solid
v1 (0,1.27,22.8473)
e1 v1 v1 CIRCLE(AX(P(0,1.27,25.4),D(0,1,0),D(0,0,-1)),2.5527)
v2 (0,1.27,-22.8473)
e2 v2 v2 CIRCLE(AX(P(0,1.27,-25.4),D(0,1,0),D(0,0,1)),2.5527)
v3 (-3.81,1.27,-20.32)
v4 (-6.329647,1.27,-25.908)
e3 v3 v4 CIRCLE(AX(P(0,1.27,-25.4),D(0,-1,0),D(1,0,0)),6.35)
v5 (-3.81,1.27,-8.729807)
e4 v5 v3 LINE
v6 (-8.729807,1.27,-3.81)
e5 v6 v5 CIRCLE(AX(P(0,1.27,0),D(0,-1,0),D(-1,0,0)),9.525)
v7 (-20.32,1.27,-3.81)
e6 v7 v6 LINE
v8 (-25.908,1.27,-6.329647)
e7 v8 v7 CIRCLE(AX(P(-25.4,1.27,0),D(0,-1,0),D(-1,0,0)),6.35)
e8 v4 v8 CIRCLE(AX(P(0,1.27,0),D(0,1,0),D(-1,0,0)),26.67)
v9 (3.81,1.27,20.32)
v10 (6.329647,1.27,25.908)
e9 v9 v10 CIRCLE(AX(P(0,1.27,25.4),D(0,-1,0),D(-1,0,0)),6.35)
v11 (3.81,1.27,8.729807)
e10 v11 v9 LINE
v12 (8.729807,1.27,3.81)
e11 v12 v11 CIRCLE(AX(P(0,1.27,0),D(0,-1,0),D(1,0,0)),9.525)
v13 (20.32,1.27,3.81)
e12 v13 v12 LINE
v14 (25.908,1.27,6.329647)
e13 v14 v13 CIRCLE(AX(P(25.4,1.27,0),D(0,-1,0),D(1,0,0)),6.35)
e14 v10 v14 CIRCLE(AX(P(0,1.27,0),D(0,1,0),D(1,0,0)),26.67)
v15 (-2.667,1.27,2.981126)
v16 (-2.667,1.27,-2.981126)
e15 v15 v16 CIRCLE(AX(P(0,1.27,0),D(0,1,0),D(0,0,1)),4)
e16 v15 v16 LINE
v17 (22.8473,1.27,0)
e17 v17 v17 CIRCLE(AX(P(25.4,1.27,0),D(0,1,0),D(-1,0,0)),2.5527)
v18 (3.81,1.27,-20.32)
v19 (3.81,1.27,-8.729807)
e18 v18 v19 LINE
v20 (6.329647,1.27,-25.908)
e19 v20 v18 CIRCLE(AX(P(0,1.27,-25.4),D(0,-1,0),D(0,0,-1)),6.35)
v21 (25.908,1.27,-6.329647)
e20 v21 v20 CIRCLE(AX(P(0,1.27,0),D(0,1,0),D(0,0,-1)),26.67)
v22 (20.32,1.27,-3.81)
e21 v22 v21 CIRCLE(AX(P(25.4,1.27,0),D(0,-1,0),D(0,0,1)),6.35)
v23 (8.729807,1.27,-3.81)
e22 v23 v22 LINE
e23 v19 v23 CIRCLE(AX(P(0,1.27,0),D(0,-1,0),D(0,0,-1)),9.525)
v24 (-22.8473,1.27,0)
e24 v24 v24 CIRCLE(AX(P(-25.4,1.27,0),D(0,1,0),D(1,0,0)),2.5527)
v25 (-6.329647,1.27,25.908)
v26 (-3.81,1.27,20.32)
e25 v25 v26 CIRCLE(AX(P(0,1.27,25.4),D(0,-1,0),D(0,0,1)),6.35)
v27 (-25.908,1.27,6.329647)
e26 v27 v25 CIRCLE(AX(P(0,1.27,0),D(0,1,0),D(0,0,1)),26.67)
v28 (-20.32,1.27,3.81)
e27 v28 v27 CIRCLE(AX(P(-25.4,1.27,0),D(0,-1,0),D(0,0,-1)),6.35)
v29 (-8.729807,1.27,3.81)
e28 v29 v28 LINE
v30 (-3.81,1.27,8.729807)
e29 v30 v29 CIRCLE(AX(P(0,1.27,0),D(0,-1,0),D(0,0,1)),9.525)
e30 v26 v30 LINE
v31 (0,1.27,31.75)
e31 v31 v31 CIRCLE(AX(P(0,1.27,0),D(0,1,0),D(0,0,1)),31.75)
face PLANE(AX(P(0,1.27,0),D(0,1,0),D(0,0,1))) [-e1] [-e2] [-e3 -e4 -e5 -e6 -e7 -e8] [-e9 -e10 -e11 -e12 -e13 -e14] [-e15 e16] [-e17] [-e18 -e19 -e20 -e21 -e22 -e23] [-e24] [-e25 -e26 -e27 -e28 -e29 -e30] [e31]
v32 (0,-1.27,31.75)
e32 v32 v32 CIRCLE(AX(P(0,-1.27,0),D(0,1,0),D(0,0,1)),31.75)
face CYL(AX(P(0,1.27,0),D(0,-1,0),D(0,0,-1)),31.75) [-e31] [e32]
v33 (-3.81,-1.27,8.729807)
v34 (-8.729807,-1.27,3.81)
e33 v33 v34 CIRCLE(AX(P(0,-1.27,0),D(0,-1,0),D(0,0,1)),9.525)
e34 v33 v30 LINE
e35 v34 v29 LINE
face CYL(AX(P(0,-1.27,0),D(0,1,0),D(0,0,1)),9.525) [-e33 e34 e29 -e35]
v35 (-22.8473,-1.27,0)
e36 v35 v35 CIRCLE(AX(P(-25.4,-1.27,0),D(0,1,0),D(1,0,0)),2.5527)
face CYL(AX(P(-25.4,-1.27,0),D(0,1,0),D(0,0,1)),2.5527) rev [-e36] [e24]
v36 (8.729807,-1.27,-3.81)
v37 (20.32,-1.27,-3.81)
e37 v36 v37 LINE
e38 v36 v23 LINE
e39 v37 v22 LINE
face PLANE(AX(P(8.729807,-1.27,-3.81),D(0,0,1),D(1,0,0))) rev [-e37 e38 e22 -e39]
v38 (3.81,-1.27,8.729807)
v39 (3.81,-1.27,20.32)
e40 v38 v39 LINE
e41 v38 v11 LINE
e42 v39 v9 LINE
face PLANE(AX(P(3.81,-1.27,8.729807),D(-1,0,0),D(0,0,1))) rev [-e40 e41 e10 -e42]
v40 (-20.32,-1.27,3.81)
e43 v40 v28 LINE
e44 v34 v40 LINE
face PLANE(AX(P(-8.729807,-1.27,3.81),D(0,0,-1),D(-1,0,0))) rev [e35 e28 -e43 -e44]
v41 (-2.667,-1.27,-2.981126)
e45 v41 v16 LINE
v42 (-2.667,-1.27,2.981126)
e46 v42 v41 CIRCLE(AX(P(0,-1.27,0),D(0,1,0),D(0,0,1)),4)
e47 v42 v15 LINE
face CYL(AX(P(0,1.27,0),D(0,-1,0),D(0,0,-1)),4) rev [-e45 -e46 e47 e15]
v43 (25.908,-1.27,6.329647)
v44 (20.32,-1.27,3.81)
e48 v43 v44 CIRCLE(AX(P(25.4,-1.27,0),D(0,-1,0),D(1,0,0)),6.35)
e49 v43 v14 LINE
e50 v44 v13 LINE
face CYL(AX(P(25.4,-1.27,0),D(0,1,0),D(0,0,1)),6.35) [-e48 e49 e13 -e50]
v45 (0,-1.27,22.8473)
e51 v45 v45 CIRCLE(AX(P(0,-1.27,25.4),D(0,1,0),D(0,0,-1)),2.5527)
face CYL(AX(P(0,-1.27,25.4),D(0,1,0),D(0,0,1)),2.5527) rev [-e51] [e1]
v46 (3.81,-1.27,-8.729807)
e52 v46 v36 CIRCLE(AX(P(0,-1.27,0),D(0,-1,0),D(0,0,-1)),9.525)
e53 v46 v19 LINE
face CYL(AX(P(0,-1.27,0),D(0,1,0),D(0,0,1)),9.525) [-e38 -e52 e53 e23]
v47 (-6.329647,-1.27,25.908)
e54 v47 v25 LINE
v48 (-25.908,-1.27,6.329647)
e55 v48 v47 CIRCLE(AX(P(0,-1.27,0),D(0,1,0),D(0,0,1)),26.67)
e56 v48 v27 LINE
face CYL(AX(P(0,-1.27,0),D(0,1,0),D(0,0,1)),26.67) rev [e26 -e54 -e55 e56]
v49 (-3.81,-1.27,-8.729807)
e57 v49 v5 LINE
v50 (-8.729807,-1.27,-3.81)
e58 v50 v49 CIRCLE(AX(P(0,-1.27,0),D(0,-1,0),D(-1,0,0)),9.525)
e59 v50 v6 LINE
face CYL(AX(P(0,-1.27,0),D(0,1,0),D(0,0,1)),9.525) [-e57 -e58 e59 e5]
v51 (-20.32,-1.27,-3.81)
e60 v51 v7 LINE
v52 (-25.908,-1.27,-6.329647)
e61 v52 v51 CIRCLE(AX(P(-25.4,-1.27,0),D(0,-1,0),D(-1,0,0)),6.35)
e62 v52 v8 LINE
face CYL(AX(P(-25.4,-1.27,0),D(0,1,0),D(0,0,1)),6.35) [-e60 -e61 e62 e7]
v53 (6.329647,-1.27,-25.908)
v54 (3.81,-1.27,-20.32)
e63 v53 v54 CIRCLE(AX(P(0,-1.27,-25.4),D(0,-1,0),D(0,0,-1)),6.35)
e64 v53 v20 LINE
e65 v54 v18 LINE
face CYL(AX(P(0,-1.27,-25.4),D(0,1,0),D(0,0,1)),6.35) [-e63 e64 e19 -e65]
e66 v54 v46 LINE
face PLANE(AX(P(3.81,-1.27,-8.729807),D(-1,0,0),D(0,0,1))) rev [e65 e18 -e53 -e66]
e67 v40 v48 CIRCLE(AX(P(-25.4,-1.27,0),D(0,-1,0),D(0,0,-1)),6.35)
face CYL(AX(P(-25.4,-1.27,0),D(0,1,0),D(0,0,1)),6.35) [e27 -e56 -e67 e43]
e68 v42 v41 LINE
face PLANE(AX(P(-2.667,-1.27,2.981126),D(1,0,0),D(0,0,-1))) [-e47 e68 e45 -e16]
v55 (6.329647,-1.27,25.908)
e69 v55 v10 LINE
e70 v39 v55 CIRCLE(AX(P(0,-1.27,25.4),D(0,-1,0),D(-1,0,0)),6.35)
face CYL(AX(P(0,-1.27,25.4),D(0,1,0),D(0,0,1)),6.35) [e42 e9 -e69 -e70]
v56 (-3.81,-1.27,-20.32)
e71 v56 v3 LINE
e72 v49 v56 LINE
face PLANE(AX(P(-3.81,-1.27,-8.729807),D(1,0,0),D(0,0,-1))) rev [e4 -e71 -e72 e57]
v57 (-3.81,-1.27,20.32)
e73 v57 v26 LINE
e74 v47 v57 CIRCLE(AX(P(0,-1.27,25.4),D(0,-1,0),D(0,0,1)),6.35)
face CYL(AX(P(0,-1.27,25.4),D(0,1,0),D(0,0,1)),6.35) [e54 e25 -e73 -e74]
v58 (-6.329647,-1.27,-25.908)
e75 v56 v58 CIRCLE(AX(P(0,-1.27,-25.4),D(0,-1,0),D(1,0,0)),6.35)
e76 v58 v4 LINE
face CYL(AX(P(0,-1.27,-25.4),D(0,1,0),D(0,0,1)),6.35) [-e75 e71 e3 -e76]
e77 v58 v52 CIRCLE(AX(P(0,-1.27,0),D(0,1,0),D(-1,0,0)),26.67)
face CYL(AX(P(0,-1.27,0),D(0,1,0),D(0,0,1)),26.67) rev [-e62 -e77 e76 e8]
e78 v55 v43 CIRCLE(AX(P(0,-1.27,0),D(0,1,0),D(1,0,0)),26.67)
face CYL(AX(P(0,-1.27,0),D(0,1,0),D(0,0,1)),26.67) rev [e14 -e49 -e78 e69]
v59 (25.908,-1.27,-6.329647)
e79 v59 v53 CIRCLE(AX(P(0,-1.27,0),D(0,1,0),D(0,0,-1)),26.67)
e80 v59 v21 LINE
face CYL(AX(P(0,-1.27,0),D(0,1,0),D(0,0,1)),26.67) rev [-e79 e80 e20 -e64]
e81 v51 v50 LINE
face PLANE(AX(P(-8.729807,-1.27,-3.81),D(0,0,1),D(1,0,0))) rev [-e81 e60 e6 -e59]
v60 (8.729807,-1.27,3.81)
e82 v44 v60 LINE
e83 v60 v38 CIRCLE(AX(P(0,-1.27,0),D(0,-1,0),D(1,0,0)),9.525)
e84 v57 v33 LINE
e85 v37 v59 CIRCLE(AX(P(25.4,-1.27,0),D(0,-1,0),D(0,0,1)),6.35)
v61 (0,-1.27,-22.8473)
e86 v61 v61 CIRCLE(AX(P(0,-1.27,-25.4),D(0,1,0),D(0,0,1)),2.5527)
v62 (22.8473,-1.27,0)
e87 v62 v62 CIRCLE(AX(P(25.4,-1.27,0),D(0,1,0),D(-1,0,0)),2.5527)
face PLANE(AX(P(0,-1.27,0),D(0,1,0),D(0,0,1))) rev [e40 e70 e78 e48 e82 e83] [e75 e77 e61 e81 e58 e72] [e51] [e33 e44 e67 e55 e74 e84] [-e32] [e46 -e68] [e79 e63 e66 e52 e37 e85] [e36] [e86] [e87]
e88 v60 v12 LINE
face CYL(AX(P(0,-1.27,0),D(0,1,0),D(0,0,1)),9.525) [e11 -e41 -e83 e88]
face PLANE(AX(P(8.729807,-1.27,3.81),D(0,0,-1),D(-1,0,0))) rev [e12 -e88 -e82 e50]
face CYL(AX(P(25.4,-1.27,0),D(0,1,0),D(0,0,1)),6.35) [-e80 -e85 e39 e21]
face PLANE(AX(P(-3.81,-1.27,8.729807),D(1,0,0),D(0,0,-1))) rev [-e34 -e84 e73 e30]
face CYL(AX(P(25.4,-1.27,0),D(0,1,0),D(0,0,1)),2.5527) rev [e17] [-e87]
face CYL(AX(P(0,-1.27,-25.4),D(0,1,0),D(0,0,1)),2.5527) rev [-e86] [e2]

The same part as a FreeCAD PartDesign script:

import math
import FreeCAD as App
import Part
import Sketcher
Q = App.Units.Quantity

doc = App.newDocument("Part")
body = doc.addObject("PartDesign::Body", "Body")

# Sketch on XZ plane
sketch1 = body.newObject("Sketcher::SketchObject", "Sketch")
sketch1.AttachmentSupport = (doc.getObject("XZ_Plane"), [""])
sketch1.MapMode = "FlatFace"
sketch1.addGeometry([
    Part.Circle(App.Vector(0, 0, 0), App.Vector(0, 0, 1), 31.8),
    Part.Circle(App.Vector(0, 0, 0), App.Vector(0, 0, 1), 4),
], False)
sketch1.addConstraint([
    Sketcher.Constraint("Coincident", 0, 3, -1, 1),
    Sketcher.Constraint("Coincident", 1, 3, -1, 1),
    Sketcher.Constraint("Diameter", 0, Q("2.5 in")),
    Sketcher.Constraint("Diameter", 1, 8.0),
])
pad1 = body.newObject("PartDesign::Pad", "Pad")
pad1.Profile = sketch1
pad1.Length = Q("0.1 in")
pad1.Midplane = True

# Sketch on XZ plane
sketch2 = body.newObject("Sketcher::SketchObject", "Sketch001")
sketch2.AttachmentSupport = (doc.getObject("XZ_Plane"), [""])
sketch2.MapMode = "FlatFace"
sketch2.AttachmentOffset = App.Placement(App.Vector(0, 0, -0.05 * 25.4), App.Rotation())
sketch2.addGeometry([
    Part.LineSegment(App.Vector(-2.7, 3, 0), App.Vector(-2.7, -3, 0)),
    Part.ArcOfCircle(Part.Circle(App.Vector(0, 0, 0), App.Vector(0, 0, 1), 4), math.radians(132), math.radians(228)),
], False)
sketch2.addConstraint([
    Sketcher.Constraint("Coincident", 0, 1, 1, 1),
    Sketcher.Constraint("Coincident", 1, 2, 0, 2),
    Sketcher.Constraint("Vertical", 0),
    Sketcher.Constraint("Coincident", 1, 3, -1, 1),
    Sketcher.Constraint("Radius", 1, 4.0),
    Sketcher.Constraint("DistanceX", 0, 1, -1, 1, Q("0.105 in")),
])
pad2 = body.newObject("PartDesign::Pad", "Pad001")
pad2.Profile = sketch2
pad2.Length = Q("0.1 in")

# Sketch on XZ plane
sketch3 = body.newObject("Sketcher::SketchObject", "Sketch002")
sketch3.AttachmentSupport = (doc.getObject("XZ_Plane"), [""])
sketch3.MapMode = "FlatFace"
sketch3.AttachmentOffset = App.Placement(App.Vector(0, 0, -0.05 * 25.4), App.Rotation())
sketch3.addGeometry(Part.Circle(App.Vector(0, -25.4, 0), App.Vector(0, 0, 1), 2.6), False)
sketch3.addConstraint([
    Sketcher.Constraint("PointOnObject", 0, 3, -2),
    Sketcher.Constraint("Diameter", 0, Q("0.201 in")),
    Sketcher.Constraint("DistanceY", 0, 3, -1, 1, Q("1 in")),
])
pocket1 = body.newObject("PartDesign::Pocket", "Pocket")
pocket1.Profile = sketch3
pocket1.Type = "ThroughAll"
pocket1.Reversed = True

# Sketch on XZ plane
sketch4 = body.newObject("Sketcher::SketchObject", "Sketch003")
sketch4.AttachmentSupport = (doc.getObject("XZ_Plane"), [""])
sketch4.MapMode = "FlatFace"
sketch4.AttachmentOffset = App.Placement(App.Vector(0, 0, -0.05 * 25.4), App.Rotation())
sketch4.addGeometry([
    Part.LineSegment(App.Vector(4, -20, 0), App.Vector(4, -9, 0)),  # 0
    Part.ArcOfCircle(Part.Circle(App.Vector(0, 0, 0), App.Vector(0, 0, 1), 10), math.radians(-66), math.radians(-24)),  # 1
    Part.LineSegment(App.Vector(9, -4, 0), App.Vector(20, -4, 0)),  # 2
    Part.ArcOfCircle(Part.Circle(App.Vector(25, 0, 0), App.Vector(0, 0, 1), 6), math.radians(-143), math.radians(-85)),  # 3
    Part.ArcOfCircle(Part.Circle(App.Vector(0, 0, 0), App.Vector(0, 0, 1), 27), math.radians(-76), math.radians(-14)),  # 4
    Part.ArcOfCircle(Part.Circle(App.Vector(0, -25, 0), App.Vector(0, 0, 1), 6), math.radians(-5), math.radians(53)),  # 5
], False)
sketch4.addConstraint([
    Sketcher.Constraint("Coincident", 0, 2, 1, 1),
    Sketcher.Constraint("Coincident", 1, 2, 2, 1),
    Sketcher.Constraint("Coincident", 2, 2, 3, 1),
    Sketcher.Constraint("Coincident", 3, 2, 4, 2),
    Sketcher.Constraint("Coincident", 4, 1, 5, 1),
    Sketcher.Constraint("Coincident", 5, 2, 0, 1),
    Sketcher.Constraint("Vertical", 0),
    Sketcher.Constraint("Horizontal", 2),
    Sketcher.Constraint("Coincident", 1, 3, -1, 1),
    Sketcher.Constraint("Coincident", 4, 3, -1, 1),
    Sketcher.Constraint("Equal", 3, 5),
    Sketcher.Constraint("PointOnObject", 3, 3, -1),
    Sketcher.Constraint("PointOnObject", 5, 3, -2),
    Sketcher.Constraint("Equal", 2, 0),
    Sketcher.Constraint("Radius", 3, Q("0.25 in")),
    Sketcher.Constraint("Radius", 4, Q("1.05 in")),
    Sketcher.Constraint("DistanceX", -1, 1, 3, 3, Q("1 in")),
    Sketcher.Constraint("DistanceY", 5, 3, -1, 1, Q("1 in")),
    Sketcher.Constraint("Radius", 1, Q("0.375 in")),
    Sketcher.Constraint("DistanceX", -1, 1, 2, 2, Q("0.8 in")),
])
pocket2 = body.newObject("PartDesign::Pocket", "Pocket001")
pocket2.Profile = sketch4
pocket2.Type = "ThroughAll"
pocket2.Reversed = True
doc.recompute()

polarpattern = body.newObject("PartDesign::PolarPattern", "PolarPattern")
polarpattern.Originals = [pocket1, pocket2]
polarpattern.Axis = (doc.getObject("Y_Axis"), [""])
polarpattern.Angle = 360
polarpattern.Occurrences = 4
body.Tip = polarpattern

doc.recompute()
